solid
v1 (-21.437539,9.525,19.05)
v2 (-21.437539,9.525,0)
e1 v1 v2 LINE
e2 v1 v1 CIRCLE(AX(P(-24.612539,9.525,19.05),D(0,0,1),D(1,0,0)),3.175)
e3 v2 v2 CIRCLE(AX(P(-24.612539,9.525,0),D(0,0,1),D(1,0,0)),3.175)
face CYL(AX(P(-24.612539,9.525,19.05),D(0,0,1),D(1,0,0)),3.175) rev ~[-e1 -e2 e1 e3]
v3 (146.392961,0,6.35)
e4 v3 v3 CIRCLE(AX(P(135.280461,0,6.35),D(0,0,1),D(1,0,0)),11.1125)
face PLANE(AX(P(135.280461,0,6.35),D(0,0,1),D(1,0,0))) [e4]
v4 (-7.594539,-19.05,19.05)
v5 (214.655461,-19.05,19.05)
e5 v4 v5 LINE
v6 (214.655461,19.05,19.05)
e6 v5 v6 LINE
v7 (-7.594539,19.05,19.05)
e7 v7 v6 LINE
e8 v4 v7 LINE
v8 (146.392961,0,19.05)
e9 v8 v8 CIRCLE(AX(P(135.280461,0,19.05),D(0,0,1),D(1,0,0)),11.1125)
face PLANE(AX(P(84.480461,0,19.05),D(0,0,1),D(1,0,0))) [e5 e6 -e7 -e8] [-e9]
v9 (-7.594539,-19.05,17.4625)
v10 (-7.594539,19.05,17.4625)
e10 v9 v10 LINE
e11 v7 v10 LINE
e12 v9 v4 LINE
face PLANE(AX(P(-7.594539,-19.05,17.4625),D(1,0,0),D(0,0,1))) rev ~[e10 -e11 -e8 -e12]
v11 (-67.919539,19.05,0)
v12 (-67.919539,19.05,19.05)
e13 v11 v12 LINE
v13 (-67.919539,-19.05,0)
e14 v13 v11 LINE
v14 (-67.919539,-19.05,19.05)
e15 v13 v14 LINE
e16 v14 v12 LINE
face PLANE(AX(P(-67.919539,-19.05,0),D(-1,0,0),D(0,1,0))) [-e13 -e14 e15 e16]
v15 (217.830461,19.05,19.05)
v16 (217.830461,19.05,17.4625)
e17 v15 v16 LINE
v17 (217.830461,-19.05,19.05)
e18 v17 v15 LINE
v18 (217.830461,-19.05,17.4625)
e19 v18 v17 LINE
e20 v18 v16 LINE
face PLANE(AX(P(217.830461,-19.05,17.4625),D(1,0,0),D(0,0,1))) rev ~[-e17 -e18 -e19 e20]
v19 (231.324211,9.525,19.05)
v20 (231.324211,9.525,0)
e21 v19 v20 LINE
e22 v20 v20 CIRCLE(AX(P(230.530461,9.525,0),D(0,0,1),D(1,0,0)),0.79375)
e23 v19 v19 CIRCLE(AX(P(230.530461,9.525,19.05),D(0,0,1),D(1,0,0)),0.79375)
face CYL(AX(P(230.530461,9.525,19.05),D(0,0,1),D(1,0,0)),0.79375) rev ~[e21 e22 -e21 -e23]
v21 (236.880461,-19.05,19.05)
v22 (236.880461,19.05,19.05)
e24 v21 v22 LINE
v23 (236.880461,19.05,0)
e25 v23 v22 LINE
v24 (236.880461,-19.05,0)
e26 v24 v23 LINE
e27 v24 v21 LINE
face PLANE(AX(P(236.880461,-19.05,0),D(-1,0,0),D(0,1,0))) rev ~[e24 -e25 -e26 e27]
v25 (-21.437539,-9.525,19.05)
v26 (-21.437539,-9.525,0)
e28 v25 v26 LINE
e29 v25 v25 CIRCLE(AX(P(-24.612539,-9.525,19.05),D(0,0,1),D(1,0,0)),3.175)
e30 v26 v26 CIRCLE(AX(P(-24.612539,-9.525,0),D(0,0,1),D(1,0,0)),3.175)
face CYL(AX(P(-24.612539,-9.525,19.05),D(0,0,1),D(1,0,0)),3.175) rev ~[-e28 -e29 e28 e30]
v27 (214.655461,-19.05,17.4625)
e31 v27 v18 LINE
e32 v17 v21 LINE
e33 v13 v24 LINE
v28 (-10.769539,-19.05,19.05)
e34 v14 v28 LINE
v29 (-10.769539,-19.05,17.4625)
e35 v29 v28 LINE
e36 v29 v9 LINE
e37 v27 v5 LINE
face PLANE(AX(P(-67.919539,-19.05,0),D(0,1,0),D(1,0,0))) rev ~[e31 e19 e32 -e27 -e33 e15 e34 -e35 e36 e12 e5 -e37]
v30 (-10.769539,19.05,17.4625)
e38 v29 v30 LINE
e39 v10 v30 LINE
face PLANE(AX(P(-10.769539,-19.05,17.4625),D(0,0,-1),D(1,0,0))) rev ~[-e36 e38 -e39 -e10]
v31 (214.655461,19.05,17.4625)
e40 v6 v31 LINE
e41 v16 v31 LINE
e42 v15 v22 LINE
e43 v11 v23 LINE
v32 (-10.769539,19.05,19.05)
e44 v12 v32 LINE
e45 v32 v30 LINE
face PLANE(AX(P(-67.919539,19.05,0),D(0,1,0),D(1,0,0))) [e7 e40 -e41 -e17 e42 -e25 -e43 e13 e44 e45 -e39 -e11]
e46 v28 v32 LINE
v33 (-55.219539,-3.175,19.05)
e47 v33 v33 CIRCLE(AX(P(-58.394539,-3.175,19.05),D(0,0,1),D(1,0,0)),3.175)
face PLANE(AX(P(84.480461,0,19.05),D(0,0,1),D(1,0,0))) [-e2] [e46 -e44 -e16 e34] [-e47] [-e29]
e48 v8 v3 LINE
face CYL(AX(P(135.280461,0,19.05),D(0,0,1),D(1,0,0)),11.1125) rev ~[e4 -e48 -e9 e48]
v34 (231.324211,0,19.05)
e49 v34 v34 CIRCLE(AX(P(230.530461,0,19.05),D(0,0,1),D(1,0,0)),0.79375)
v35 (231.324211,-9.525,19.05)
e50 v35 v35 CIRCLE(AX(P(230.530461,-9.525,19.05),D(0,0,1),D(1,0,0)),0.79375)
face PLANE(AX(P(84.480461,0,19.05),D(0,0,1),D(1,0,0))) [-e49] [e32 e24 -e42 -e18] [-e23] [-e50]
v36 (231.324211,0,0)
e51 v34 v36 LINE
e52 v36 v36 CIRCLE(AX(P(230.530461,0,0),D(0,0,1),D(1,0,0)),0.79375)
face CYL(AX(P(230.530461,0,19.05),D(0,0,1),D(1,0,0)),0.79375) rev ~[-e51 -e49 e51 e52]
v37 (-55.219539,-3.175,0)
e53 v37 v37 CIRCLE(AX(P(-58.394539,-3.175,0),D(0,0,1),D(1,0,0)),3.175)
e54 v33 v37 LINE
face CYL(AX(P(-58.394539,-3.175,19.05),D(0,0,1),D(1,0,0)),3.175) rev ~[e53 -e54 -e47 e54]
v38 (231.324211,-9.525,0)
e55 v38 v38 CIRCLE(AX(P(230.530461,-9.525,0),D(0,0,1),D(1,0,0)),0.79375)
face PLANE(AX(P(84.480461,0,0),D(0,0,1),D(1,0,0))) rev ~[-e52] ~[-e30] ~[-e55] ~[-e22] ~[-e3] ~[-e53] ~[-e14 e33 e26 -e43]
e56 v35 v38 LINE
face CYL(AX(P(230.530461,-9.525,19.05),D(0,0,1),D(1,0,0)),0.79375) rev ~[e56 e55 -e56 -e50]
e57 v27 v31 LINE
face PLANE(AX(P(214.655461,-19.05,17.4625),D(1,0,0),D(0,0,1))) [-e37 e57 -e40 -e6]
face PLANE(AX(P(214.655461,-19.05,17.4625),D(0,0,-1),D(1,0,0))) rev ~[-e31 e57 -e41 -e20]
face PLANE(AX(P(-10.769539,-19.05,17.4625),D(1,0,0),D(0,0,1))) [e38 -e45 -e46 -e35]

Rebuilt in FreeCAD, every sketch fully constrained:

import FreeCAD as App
import Part
import Sketcher
from FreeCAD import Vector
Q = App.Units.Quantity


def add_polygon(sketch, points):
    """Adds a closed chain of lines whose ends are joined by coincident constraints."""
    first, n = sketch.GeometryCount, len(points)
    for a, b in zip(points, points[1:] + points[:1]):
        sketch.addGeometry(Part.LineSegment(App.Vector(*a, 0), App.Vector(*b, 0)), False)
    for i in range(n):
        sketch.addConstraint(Sketcher.Constraint("Coincident", first + i, 2, first + (i + 1) % n, 1))

doc = App.newDocument("Part")
body = doc.addObject("PartDesign::Body", "Body")

sketch1 = body.newObject("Sketcher::SketchObject", "Sketch")
sketch1.AttachmentSupport = (doc.getObject("XY_Plane"), [""])
sketch1.MapMode = "FlatFace"
add_polygon(sketch1, [(-68, 19), (-68, -19), (237, -19), (237, 19)])
sketch1.addConstraint([
    Sketcher.Constraint("Vertical", 0),
    Sketcher.Constraint("Horizontal", 1),
    Sketcher.Constraint("Vertical", 2),
    Sketcher.Constraint("Horizontal", 3),
    Sketcher.Constraint("DistanceX", 1, 1, 1, 2, Q("12 in")),
    Sketcher.Constraint("DistanceY", 0, 2, 0, 1, Q("1.5 in")),
    Sketcher.Constraint("DistanceY", 0, 2, -1, 1, Q("0.75 in")),
    Sketcher.Constraint("DistanceX", 0, 2, -1, 1, 67.919539),
])
pad1 = body.newObject("PartDesign::Pad", "Pad")
pad1.Profile = sketch1
pad1.Length = Q("0.75 in")

sketch2 = body.newObject("Sketcher::SketchObject", "Sketch001")
sketch2.AttachmentSupport = (doc.getObject("XY_Plane"), [""])
sketch2.MapMode = "FlatFace"
sketch2.AttachmentOffset = App.Placement(Vector(0, 0, 0.75 * 25.4), App.Rotation())
sketch2.addGeometry(Part.Circle(Vector(135, 0, 0), Vector(0, 0, 1), 11), False)
sketch2.addConstraint([
    Sketcher.Constraint("PointOnObject", 0, 3, -1),
    Sketcher.Constraint("Diameter", 0, Q("0.875 in")),
    Sketcher.Constraint("DistanceX", -1, 1, 0, 3, 135.280461),
])
pocket1 = body.newObject("PartDesign::Pocket", "Pocket")
pocket1.Profile = sketch2
pocket1.Length = Q("0.5 in")

sketch3 = body.newObject("Sketcher::SketchObject", "Sketch002")
sketch3.AttachmentSupport = (doc.getObject("XY_Plane"), [""])
sketch3.MapMode = "FlatFace"
sketch3.AttachmentOffset = App.Placement(Vector(0, 0, 0.75 * 25.4), App.Rotation())
sketch3.addGeometry(Part.Circle(Vector(-58.4, -3.2, 0), Vector(0, 0, 1), 3.2), False)
sketch3.addConstraint([
    Sketcher.Constraint("Diameter", 0, Q("0.25 in")),
    Sketcher.Constraint("DistanceY", 0, 3, -1, 1, Q("0.125 in")),
    Sketcher.Constraint("DistanceX", 0, 3, -1, 1, 58.394539),
])
pocket2 = body.newObject("PartDesign::Pocket", "Pocket001")
pocket2.Profile = sketch3
pocket2.Type = "ThroughAll"

sketch4 = body.newObject("Sketcher::SketchObject", "Sketch003")
sketch4.AttachmentSupport = (doc.getObject("XY_Plane"), [""])
sketch4.MapMode = "FlatFace"
sketch4.AttachmentOffset = App.Placement(Vector(0, 0, 0.75 * 25.4), App.Rotation())
sketch4.addGeometry([
    Part.Circle(Vector(-24.6, -9.5, 0), Vector(0, 0, 1), 3.2),
    Part.Circle(Vector(-24.6, 9.5, 0), Vector(0, 0, 1), 3.2),
], False)
sketch4.addConstraint([
    Sketcher.Constraint("Equal", 0, 1),
    Sketcher.Constraint("Symmetric", 0, 3, 1, 3, -1),
    Sketcher.Constraint("Diameter", 0, Q("0.25 in")),
    Sketcher.Constraint("DistanceY", 0, 3, 1, 3, Q("0.75 in")),
    Sketcher.Constraint("DistanceX", 0, 3, -1, 1, 24.612539),
])
pocket3 = body.newObject("PartDesign::Pocket", "Pocket002")
pocket3.Profile = sketch4
pocket3.Type = "ThroughAll"

sketch5 = body.newObject("Sketcher::SketchObject", "Sketch004")
sketch5.AttachmentSupport = (doc.getObject("XY_Plane"), [""])
sketch5.MapMode = "FlatFace"
sketch5.AttachmentOffset = App.Placement(Vector(0, 0, 0.75 * 25.4), App.Rotation())
sketch5.addGeometry([
    Part.Circle(Vector(230.5, 9.5, 0), Vector(0, 0, 1), 0.8),
    Part.Circle(Vector(230.5, 0, 0), Vector(0, 0, 1), 0.8),
    Part.Circle(Vector(230.5, -9.5, 0), Vector(0, 0, 1), 0.8),
], False)
sketch5.addConstraint([
    Sketcher.Constraint("Equal", 0, 1),
    Sketcher.Constraint("Equal", 1, 2),
    Sketcher.Constraint("Symmetric", 0, 3, 2, 3, -1),
    Sketcher.Constraint("PointOnObject", 1, 3, -1),
    Sketcher.Constraint("Vertical", 0, 3, 1, 3),
    Sketcher.Constraint("Diameter", 0, Q("0.0625 in")),
    Sketcher.Constraint("DistanceY", 2, 3, 0, 3, Q("0.75 in")),
    Sketcher.Constraint("DistanceX", -1, 1, 0, 3, 230.530461),
])
pocket4 = body.newObject("PartDesign::Pocket", "Pocket003")
pocket4.Profile = sketch5
pocket4.Type = "ThroughAll"

sketch6 = body.newObject("Sketcher::SketchObject", "Sketch005")
sketch6.AttachmentSupport = (doc.getObject("XZ_Plane"), [""])
sketch6.MapMode = "FlatFace"
sketch6.AttachmentOffset = App.Placement(Vector(0, 0, 0.75 * 25.4), App.Rotation())
add_polygon(sketch6, [(-10.8, 19.1), (-10.8, 17.5), (-7.6, 17.5), (-7.6, 19.1)])
add_polygon(sketch6, [(214.7, 19.1), (214.7, 17.5), (217.8, 17.5), (217.8, 19.1)])
sketch6.addConstraint([
    Sketcher.Constraint("Vertical", 0),
    Sketcher.Constraint("Horizontal", 1),
    Sketcher.Constraint("Vertical", 2),
    Sketcher.Constraint("Horizontal", 3),
    Sketcher.Constraint("Vertical", 4),
    Sketcher.Constraint("Horizontal", 5),
    Sketcher.Constraint("Vertical", 6),
    Sketcher.Constraint("Horizontal", 7),
    Sketcher.Constraint("Horizontal", 1, 2, 4, 2),
    Sketcher.Constraint("Horizontal", 3, 2, 6, 2),
    Sketcher.Constraint("Equal", 3, 5),
    Sketcher.Constraint("DistanceX", 0, 2, 5, 2, Q("9 in")),
    Sketcher.Constraint("DistanceX", 1, 1, 1, 2, Q("0.125 in")),
    Sketcher.Constraint("DistanceY", 0, 2, 0, 1, Q("0.0625 in")),
    Sketcher.Constraint("DistanceY", -1, 1, 2, 2, Q("0.75 in")),
    Sketcher.Constraint("DistanceX", 0, 2, -1, 1, 10.769539),
])
pocket5 = body.newObject("PartDesign::Pocket", "Pocket004")
pocket5.Profile = sketch6
pocket5.Type = "ThroughAll"

doc.recompute()
